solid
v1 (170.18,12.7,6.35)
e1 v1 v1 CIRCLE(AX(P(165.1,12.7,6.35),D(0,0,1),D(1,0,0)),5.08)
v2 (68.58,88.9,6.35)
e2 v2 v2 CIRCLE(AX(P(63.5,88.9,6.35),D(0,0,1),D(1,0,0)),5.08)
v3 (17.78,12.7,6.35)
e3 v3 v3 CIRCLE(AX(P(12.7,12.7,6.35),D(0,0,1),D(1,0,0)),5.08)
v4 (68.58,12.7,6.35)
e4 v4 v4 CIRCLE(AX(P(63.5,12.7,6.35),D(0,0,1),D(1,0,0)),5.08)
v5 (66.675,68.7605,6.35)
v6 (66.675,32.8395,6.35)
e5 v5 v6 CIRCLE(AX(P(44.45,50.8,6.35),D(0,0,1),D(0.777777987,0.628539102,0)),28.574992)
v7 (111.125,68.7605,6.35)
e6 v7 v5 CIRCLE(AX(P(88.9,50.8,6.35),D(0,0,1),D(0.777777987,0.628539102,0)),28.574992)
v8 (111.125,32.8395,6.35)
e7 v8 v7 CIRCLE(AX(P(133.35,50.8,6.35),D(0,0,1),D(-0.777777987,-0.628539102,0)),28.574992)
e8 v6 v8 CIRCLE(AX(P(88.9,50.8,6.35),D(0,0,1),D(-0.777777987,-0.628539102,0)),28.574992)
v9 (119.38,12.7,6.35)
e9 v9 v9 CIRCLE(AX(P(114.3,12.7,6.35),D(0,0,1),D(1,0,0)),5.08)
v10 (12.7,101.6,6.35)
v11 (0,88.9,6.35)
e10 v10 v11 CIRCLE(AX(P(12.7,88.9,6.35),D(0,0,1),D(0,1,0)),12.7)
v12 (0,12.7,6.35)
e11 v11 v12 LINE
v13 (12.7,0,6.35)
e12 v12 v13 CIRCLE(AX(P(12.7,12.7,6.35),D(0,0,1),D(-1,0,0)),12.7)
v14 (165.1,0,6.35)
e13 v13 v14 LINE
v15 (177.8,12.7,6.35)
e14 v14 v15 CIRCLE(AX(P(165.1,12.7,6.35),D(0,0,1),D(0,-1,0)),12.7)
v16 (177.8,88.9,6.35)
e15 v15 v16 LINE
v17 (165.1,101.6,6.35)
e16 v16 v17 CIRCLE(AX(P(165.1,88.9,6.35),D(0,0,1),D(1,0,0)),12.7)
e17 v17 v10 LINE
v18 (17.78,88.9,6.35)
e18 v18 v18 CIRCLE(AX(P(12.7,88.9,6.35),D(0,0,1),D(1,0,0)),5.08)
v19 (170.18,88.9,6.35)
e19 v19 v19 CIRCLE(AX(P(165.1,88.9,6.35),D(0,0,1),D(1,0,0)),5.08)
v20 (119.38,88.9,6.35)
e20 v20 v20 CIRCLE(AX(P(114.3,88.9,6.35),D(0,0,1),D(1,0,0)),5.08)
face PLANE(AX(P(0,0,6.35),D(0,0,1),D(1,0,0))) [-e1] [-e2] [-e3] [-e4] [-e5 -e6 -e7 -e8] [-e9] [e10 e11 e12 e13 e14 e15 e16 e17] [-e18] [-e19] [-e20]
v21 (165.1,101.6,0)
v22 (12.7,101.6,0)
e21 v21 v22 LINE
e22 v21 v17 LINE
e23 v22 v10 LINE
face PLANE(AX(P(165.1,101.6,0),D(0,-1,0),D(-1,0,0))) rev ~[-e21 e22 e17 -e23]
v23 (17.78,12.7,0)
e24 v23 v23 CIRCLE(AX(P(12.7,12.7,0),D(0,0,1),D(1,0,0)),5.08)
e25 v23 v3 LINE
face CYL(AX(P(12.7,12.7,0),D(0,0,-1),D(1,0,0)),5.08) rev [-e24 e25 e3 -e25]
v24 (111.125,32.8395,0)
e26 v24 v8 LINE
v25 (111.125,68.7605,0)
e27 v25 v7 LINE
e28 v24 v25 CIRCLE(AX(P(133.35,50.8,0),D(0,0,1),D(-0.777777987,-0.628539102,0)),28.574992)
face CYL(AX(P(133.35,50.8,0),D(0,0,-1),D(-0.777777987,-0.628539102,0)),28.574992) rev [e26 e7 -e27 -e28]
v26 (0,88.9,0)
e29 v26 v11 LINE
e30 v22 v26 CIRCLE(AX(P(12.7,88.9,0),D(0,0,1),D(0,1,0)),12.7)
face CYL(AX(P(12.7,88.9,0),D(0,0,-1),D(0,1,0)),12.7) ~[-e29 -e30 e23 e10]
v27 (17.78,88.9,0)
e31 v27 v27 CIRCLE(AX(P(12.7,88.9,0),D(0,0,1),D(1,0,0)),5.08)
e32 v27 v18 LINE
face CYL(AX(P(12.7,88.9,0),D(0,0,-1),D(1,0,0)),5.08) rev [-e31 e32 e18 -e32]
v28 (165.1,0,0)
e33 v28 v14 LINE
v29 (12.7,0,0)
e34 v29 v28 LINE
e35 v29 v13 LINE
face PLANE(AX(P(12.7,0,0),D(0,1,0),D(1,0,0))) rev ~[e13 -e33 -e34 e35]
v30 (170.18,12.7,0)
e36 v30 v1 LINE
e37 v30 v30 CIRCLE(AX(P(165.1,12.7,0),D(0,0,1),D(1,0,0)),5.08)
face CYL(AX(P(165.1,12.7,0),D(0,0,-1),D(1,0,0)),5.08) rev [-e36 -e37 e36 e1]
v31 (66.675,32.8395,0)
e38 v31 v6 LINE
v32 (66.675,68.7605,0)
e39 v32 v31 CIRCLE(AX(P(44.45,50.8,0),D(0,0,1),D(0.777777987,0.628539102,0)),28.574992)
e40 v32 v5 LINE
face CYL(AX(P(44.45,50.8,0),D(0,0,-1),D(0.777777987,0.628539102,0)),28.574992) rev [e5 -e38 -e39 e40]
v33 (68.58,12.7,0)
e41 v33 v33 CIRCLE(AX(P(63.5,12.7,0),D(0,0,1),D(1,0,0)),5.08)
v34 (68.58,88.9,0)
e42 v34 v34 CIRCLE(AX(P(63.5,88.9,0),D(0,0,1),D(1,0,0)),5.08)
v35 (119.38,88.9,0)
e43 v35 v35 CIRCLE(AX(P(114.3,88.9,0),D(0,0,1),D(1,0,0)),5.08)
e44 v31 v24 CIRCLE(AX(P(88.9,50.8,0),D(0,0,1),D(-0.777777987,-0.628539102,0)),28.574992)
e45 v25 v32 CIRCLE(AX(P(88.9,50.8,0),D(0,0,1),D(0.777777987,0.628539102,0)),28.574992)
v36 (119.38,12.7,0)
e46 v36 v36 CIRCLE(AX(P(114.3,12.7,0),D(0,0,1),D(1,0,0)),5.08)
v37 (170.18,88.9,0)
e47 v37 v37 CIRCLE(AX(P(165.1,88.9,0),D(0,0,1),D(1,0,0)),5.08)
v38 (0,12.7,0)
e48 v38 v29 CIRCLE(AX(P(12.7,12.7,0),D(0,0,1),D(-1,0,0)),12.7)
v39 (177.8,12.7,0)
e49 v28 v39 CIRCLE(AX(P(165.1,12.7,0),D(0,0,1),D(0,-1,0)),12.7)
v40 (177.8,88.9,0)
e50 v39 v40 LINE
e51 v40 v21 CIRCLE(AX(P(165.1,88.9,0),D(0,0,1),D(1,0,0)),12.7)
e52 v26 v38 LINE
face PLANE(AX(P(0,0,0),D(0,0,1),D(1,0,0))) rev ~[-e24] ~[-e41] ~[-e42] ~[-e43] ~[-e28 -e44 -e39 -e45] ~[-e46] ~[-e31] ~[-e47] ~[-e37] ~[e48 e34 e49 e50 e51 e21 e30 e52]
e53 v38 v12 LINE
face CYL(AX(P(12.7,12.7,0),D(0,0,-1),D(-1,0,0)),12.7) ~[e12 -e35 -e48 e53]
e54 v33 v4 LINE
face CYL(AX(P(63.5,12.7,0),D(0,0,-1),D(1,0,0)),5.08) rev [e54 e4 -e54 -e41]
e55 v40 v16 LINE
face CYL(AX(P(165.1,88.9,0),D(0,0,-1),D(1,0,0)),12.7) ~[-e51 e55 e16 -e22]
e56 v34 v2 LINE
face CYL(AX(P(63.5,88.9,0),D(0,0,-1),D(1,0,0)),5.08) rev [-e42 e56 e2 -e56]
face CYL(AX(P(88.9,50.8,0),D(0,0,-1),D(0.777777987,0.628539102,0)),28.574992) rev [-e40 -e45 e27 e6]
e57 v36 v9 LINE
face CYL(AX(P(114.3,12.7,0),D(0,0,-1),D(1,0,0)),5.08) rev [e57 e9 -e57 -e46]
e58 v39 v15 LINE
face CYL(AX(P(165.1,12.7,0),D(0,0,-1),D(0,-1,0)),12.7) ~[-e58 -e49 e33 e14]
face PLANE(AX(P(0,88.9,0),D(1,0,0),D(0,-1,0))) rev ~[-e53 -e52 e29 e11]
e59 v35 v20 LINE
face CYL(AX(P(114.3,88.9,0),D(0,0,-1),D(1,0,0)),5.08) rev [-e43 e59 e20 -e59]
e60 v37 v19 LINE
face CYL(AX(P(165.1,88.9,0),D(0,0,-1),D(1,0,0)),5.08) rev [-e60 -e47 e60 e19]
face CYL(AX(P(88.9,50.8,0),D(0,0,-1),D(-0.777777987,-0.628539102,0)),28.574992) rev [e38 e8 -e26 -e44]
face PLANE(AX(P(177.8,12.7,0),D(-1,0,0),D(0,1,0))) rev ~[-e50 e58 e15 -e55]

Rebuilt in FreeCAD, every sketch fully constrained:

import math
import FreeCAD as App
import Part
import Sketcher

V = App.Vector
Q = App.Units.Quantity

doc = App.newDocument("Part")
body = doc.addObject("PartDesign::Body", "Body")

sketch1 = body.newObject("Sketcher::SketchObject", "Sketch")
sketch1.AttachmentSupport = (doc.getObject("XY_Plane"), [""])
sketch1.MapMode = "FlatFace"
sketch1.addGeometry([
    Part.ArcOfCircle(Part.Circle(V(12.7, 12.7, 0), V(0, 0, 1), 12.7), math.radians(180), math.radians(270)),
    Part.LineSegment(V(12.7, 0, 0), V(165.1, 0, 0)),
    Part.ArcOfCircle(Part.Circle(V(165.1, 12.7, 0), V(0, 0, 1), 12.7), math.radians(-90), math.radians(0)),
    Part.LineSegment(V(177.8, 12.7, 0), V(177.8, 88.9, 0)),
    Part.ArcOfCircle(Part.Circle(V(165.1, 88.9, 0), V(0, 0, 1), 12.7), math.radians(0), math.radians(90)),
    Part.LineSegment(V(165.1, 101.6, 0), V(12.7, 101.6, 0)),
    Part.ArcOfCircle(Part.Circle(V(12.7, 88.9, 0), V(0, 0, 1), 12.7), math.radians(90), math.radians(180)),
    Part.LineSegment(V(0, 88.9, 0), V(0, 12.7, 0)),
    Part.Circle(V(12.7, 12.7, 0), V(0, 0, 1), 5.08),
    Part.Circle(V(63.5, 12.7, 0), V(0, 0, 1), 5.08),
    Part.Circle(V(114.3, 12.7, 0), V(0, 0, 1), 5.08),
    Part.Circle(V(165.1, 12.7, 0), V(0, 0, 1), 5.08),
    Part.ArcOfCircle(Part.Circle(V(133.35, 50.8, 0), V(0, 0, 1), 28.574992), math.radians(-141.057578), math.radians(141.057578)),
    Part.ArcOfCircle(Part.Circle(V(88.9, 50.8, 0), V(0, 0, 1), 28.574992), math.radians(-141.057578), math.radians(-38.942422)),
    Part.ArcOfCircle(Part.Circle(V(44.45, 50.8, 0), V(0, 0, 1), 28.574992), math.radians(38.942422), math.radians(321.057578)),
    Part.ArcOfCircle(Part.Circle(V(88.9, 50.8, 0), V(0, 0, 1), 28.574992), math.radians(38.942422), math.radians(141.057578)),
    Part.Circle(V(12.7, 88.9, 0), V(0, 0, 1), 5.08),
    Part.Circle(V(63.5, 88.9, 0), V(0, 0, 1), 5.08),
    Part.Circle(V(114.3, 88.9, 0), V(0, 0, 1), 5.08),
    Part.Circle(V(165.1, 88.9, 0), V(0, 0, 1), 5.08),
], False)
sketch1.addConstraint([
    Sketcher.Constraint("Tangent", 0, 2, 1, 1),
    Sketcher.Constraint("Tangent", 1, 2, 2, 1),
    Sketcher.Constraint("Tangent", 2, 2, 3, 1),
    Sketcher.Constraint("Tangent", 3, 2, 4, 1),
    Sketcher.Constraint("Tangent", 4, 2, 5, 1),
    Sketcher.Constraint("Tangent", 5, 2, 6, 1),
    Sketcher.Constraint("Tangent", 6, 2, 7, 1),
    Sketcher.Constraint("Tangent", 7, 2, 0, 1),
    Sketcher.Constraint("Coincident", 12, 1, 13, 2),
    Sketcher.Constraint("Coincident", 13, 1, 14, 2),
    Sketcher.Constraint("Coincident", 14, 1, 15, 2),
    Sketcher.Constraint("Coincident", 15, 1, 12, 2),
    Sketcher.Constraint("Horizontal", 1),
    Sketcher.Constraint("Vertical", 3),
    Sketcher.Constraint("Horizontal", 5),
    Sketcher.Constraint("Vertical", 7),
    Sketcher.Constraint("Coincident", 8, 3, 0, 3),
    Sketcher.Constraint("Coincident", 11, 3, 2, 3),
    Sketcher.Constraint("Coincident", 15, 3, 13, 3),
    Sketcher.Constraint("Coincident", 16, 3, 6, 3),
    Sketcher.Constraint("Coincident", 19, 3, 4, 3),
    Sketcher.Constraint("Equal", 0, 2),
    Sketcher.Constraint("Equal", 2, 4),
    Sketcher.Constraint("Equal", 4, 6),
    Sketcher.Constraint("Equal", 8, 9),
    Sketcher.Constraint("Equal", 9, 10),
    Sketcher.Constraint("Equal", 10, 11),
    Sketcher.Constraint("Equal", 12, 13),
    Sketcher.Constraint("Equal", 13, 14),
    Sketcher.Constraint("Equal", 14, 15),
    Sketcher.Constraint("Equal", 11, 16),
    Sketcher.Constraint("Equal", 16, 17),
    Sketcher.Constraint("Equal", 17, 18),
    Sketcher.Constraint("Equal", 18, 19),
    Sketcher.Constraint("PointOnObject", 0, 2, -1),
    Sketcher.Constraint("PointOnObject", 6, 2, -2),
    Sketcher.Constraint("Horizontal", 8, 3, 9, 3),
    Sketcher.Constraint("Horizontal", 9, 3, 10, 3),
    Sketcher.Constraint("Horizontal", 12, 3, 13, 3),
    Sketcher.Constraint("Horizontal", 13, 3, 14, 3),
    Sketcher.Constraint("Horizontal", 16, 3, 17, 3),
    Sketcher.Constraint("Horizontal", 17, 3, 18, 3),
    Sketcher.Constraint("Horizontal", 12, 1, 13, 1),
    Sketcher.Constraint("Vertical", 9, 3, 17, 3),
    Sketcher.Constraint("Vertical", 10, 3, 18, 3),
    Sketcher.Constraint("Diameter", 8, Q("0.4 in")),
    Sketcher.Constraint("Radius", 0, Q("0.5 in")),
    Sketcher.Constraint("DistanceY", -1, 1, 12, 3, Q("2 in")),
    Sketcher.Constraint("DistanceX", -1, 1, 2, 2, Q("7 in")),
    Sketcher.Constraint("DistanceY", -1, 1, 4, 2, Q("4 in")),
    Sketcher.Constraint("Radius", 12, Q("1.125 in")),
    Sketcher.Constraint("DistanceX", 0, 3, 9, 3, Q("2 in")),
    Sketcher.Constraint("DistanceX", 10, 3, 2, 3, Q("2 in")),
    Sketcher.Constraint("DistanceX", -1, 1, 13, 3, Q("3.5 in")),
    Sketcher.Constraint("DistanceX", -1, 1, 14, 3, Q("1.75 in")),
])
pad1 = body.newObject("PartDesign::Pad", "Pad")
pad1.Profile = sketch1
pad1.Length = Q("0.25 in")

doc.recompute()
